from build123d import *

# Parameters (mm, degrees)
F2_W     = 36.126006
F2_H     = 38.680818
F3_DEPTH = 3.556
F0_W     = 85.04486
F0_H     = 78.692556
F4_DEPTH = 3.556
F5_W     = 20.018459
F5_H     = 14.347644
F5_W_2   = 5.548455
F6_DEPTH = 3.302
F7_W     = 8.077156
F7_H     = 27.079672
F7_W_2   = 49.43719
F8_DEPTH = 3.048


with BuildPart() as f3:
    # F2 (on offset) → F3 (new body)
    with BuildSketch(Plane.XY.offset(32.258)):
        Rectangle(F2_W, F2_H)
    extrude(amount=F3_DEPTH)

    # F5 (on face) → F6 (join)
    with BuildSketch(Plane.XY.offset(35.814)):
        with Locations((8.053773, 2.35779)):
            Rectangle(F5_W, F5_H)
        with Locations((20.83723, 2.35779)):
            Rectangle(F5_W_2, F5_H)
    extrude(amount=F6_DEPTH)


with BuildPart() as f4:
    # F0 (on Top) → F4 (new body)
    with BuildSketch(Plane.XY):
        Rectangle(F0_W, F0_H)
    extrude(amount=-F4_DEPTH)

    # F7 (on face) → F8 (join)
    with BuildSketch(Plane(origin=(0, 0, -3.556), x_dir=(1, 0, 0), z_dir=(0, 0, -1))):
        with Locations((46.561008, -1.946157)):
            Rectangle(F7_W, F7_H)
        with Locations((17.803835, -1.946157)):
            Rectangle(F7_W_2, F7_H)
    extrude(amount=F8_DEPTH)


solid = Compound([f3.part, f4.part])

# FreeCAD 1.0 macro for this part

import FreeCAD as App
import Part
import Sketcher
from FreeCAD import Vector
Q = App.Units.Quantity


def add_polygon(sketch, points):
    """Adds a closed chain of lines whose ends are joined by coincident constraints."""
    first, n = sketch.GeometryCount, len(points)
    for a, b in zip(points, points[1:] + points[:1]):
        sketch.addGeometry(Part.LineSegment(App.Vector(*a, 0), App.Vector(*b, 0)), False)
    for i in range(n):
        sketch.addConstraint(Sketcher.Constraint("Coincident", first + i, 2, first + (i + 1) % n, 1))

doc = App.newDocument("Part")
body = doc.addObject("PartDesign::Body", "Body")

# Sketch on XY plane
sketch1 = body.newObject("Sketcher::SketchObject", "Sketch")
sketch1.AttachmentSupport = (doc.getObject("XY_Plane"), [""])
sketch1.MapMode = "FlatFace"
sketch1.AttachmentOffset = App.Placement(Vector(0, 0, 1.27 * 25.4), App.Rotation())
add_polygon(sketch1, [(-18.063003, 19.340409), (-18.063003, -19.340409), (18.063003, -19.340409), (18.063003, 19.340409)])  # lines 0-3
sketch1.addConstraint([
    Sketcher.Constraint("Vertical", 0),
    Sketcher.Constraint("Horizontal", 1),
    Sketcher.Constraint("Vertical", 2),
    Sketcher.Constraint("Horizontal", 3),
    Sketcher.Constraint("Symmetric", 0, 2, 2, 2, -1, 1),
    Sketcher.Constraint("DistanceY", 0, 2, 0, 1, Q("38.680818 mm")),
    Sketcher.Constraint("DistanceX", 1, 1, 1, 2, Q("36.126006 mm")),
])
pad1 = body.newObject("PartDesign::Pad", "Pad")
pad1.Profile = sketch1
pad1.Length = Q("0.14 in")

# Sketch on XY plane
sketch2 = body.newObject("Sketcher::SketchObject", "Sketch001")
sketch2.AttachmentSupport = (doc.getObject("XY_Plane"), [""])
sketch2.MapMode = "FlatFace"
sketch2.AttachmentOffset = App.Placement(Vector(0, 0, 1.41 * 25.4), App.Rotation())
add_polygon(sketch2, [(-1.955456, 9.531612), (-1.955456, -4.816032), (23.611458, -4.816032), (23.611458, 9.531612)])  # lines 0-3
sketch2.addConstraint([
    Sketcher.Constraint("Vertical", 0),
    Sketcher.Constraint("Horizontal", 1),
    Sketcher.Constraint("Vertical", 2),
    Sketcher.Constraint("Horizontal", 3),
    Sketcher.Constraint("DistanceX", 1, 1, 1, 2, Q("25.566914 mm")),
    Sketcher.Constraint("DistanceY", 0, 2, 0, 1, Q("14.347644 mm")),
    Sketcher.Constraint("DistanceX", 0, 2, -1, 1, Q("1.955456 mm")),
    Sketcher.Constraint("DistanceY", 0, 2, -1, 1, Q("4.816032 mm")),
])
pad2 = body.newObject("PartDesign::Pad", "Pad001")
pad2.Profile = sketch2
pad2.Length = Q("0.13 in")
body2 = doc.addObject("PartDesign::Body", "Body001")

# Sketch on XY plane
sketch3 = body2.newObject("Sketcher::SketchObject", "Sketch002")
sketch3.AttachmentSupport = (doc.getObject("XY_Plane001"), [""])
sketch3.MapMode = "FlatFace"
add_polygon(sketch3, [(-42.52243, 39.346278), (-42.52243, -39.346278), (42.52243, -39.346278), (42.52243, 39.346278)])  # lines 0-3
sketch3.addConstraint([
    Sketcher.Constraint("Vertical", 0),
    Sketcher.Constraint("Horizontal", 1),
    Sketcher.Constraint("Vertical", 2),
    Sketcher.Constraint("Horizontal", 3),
    Sketcher.Constraint("Symmetric", 0, 2, 2, 2, -1, 1),
    Sketcher.Constraint("DistanceX", 1, 1, 1, 2, Q("85.04486 mm")),
    Sketcher.Constraint("DistanceY", 0, 2, 0, 1, Q("78.692556 mm")),
])
pad3 = body2.newObject("PartDesign::Pad", "Pad002")
pad3.Profile = sketch3
pad3.Length = Q("0.14 in")
pad3.Reversed = True

# Sketch on XY plane
sketch4 = body2.newObject("Sketcher::SketchObject", "Sketch003")
sketch4.AttachmentSupport = (doc.getObject("XY_Plane001"), [""])
sketch4.MapMode = "FlatFace"
sketch4.AttachmentOffset = App.Placement(Vector(0, 0, -0.14 * 25.4), App.Rotation())
add_polygon(sketch4, [(50.599586, 15.485993), (50.599586, -11.593679), (-6.91476, -11.593679), (-6.91476, 15.485993)])  # lines 0-3
sketch4.addConstraint([
    Sketcher.Constraint("Vertical", 0),
    Sketcher.Constraint("Horizontal", 1),
    Sketcher.Constraint("Vertical", 2),
    Sketcher.Constraint("Horizontal", 3),
    Sketcher.Constraint("DistanceX", 1, 2, 1, 1, Q("57.514346 mm")),
    Sketcher.Constraint("DistanceY", 0, 2, 0, 1, Q("27.079672 mm")),
    Sketcher.Constraint("DistanceY", 0, 2, -1, 1, Q("11.593679 mm")),
    Sketcher.Constraint("DistanceX", 1, 2, -1, 1, Q("6.91476 mm")),
])
pad4 = body2.newObject("PartDesign::Pad", "Pad003")
pad4.Profile = sketch4
pad4.Length = Q("0.12 in")
pad4.Reversed = True

doc.recompute()
